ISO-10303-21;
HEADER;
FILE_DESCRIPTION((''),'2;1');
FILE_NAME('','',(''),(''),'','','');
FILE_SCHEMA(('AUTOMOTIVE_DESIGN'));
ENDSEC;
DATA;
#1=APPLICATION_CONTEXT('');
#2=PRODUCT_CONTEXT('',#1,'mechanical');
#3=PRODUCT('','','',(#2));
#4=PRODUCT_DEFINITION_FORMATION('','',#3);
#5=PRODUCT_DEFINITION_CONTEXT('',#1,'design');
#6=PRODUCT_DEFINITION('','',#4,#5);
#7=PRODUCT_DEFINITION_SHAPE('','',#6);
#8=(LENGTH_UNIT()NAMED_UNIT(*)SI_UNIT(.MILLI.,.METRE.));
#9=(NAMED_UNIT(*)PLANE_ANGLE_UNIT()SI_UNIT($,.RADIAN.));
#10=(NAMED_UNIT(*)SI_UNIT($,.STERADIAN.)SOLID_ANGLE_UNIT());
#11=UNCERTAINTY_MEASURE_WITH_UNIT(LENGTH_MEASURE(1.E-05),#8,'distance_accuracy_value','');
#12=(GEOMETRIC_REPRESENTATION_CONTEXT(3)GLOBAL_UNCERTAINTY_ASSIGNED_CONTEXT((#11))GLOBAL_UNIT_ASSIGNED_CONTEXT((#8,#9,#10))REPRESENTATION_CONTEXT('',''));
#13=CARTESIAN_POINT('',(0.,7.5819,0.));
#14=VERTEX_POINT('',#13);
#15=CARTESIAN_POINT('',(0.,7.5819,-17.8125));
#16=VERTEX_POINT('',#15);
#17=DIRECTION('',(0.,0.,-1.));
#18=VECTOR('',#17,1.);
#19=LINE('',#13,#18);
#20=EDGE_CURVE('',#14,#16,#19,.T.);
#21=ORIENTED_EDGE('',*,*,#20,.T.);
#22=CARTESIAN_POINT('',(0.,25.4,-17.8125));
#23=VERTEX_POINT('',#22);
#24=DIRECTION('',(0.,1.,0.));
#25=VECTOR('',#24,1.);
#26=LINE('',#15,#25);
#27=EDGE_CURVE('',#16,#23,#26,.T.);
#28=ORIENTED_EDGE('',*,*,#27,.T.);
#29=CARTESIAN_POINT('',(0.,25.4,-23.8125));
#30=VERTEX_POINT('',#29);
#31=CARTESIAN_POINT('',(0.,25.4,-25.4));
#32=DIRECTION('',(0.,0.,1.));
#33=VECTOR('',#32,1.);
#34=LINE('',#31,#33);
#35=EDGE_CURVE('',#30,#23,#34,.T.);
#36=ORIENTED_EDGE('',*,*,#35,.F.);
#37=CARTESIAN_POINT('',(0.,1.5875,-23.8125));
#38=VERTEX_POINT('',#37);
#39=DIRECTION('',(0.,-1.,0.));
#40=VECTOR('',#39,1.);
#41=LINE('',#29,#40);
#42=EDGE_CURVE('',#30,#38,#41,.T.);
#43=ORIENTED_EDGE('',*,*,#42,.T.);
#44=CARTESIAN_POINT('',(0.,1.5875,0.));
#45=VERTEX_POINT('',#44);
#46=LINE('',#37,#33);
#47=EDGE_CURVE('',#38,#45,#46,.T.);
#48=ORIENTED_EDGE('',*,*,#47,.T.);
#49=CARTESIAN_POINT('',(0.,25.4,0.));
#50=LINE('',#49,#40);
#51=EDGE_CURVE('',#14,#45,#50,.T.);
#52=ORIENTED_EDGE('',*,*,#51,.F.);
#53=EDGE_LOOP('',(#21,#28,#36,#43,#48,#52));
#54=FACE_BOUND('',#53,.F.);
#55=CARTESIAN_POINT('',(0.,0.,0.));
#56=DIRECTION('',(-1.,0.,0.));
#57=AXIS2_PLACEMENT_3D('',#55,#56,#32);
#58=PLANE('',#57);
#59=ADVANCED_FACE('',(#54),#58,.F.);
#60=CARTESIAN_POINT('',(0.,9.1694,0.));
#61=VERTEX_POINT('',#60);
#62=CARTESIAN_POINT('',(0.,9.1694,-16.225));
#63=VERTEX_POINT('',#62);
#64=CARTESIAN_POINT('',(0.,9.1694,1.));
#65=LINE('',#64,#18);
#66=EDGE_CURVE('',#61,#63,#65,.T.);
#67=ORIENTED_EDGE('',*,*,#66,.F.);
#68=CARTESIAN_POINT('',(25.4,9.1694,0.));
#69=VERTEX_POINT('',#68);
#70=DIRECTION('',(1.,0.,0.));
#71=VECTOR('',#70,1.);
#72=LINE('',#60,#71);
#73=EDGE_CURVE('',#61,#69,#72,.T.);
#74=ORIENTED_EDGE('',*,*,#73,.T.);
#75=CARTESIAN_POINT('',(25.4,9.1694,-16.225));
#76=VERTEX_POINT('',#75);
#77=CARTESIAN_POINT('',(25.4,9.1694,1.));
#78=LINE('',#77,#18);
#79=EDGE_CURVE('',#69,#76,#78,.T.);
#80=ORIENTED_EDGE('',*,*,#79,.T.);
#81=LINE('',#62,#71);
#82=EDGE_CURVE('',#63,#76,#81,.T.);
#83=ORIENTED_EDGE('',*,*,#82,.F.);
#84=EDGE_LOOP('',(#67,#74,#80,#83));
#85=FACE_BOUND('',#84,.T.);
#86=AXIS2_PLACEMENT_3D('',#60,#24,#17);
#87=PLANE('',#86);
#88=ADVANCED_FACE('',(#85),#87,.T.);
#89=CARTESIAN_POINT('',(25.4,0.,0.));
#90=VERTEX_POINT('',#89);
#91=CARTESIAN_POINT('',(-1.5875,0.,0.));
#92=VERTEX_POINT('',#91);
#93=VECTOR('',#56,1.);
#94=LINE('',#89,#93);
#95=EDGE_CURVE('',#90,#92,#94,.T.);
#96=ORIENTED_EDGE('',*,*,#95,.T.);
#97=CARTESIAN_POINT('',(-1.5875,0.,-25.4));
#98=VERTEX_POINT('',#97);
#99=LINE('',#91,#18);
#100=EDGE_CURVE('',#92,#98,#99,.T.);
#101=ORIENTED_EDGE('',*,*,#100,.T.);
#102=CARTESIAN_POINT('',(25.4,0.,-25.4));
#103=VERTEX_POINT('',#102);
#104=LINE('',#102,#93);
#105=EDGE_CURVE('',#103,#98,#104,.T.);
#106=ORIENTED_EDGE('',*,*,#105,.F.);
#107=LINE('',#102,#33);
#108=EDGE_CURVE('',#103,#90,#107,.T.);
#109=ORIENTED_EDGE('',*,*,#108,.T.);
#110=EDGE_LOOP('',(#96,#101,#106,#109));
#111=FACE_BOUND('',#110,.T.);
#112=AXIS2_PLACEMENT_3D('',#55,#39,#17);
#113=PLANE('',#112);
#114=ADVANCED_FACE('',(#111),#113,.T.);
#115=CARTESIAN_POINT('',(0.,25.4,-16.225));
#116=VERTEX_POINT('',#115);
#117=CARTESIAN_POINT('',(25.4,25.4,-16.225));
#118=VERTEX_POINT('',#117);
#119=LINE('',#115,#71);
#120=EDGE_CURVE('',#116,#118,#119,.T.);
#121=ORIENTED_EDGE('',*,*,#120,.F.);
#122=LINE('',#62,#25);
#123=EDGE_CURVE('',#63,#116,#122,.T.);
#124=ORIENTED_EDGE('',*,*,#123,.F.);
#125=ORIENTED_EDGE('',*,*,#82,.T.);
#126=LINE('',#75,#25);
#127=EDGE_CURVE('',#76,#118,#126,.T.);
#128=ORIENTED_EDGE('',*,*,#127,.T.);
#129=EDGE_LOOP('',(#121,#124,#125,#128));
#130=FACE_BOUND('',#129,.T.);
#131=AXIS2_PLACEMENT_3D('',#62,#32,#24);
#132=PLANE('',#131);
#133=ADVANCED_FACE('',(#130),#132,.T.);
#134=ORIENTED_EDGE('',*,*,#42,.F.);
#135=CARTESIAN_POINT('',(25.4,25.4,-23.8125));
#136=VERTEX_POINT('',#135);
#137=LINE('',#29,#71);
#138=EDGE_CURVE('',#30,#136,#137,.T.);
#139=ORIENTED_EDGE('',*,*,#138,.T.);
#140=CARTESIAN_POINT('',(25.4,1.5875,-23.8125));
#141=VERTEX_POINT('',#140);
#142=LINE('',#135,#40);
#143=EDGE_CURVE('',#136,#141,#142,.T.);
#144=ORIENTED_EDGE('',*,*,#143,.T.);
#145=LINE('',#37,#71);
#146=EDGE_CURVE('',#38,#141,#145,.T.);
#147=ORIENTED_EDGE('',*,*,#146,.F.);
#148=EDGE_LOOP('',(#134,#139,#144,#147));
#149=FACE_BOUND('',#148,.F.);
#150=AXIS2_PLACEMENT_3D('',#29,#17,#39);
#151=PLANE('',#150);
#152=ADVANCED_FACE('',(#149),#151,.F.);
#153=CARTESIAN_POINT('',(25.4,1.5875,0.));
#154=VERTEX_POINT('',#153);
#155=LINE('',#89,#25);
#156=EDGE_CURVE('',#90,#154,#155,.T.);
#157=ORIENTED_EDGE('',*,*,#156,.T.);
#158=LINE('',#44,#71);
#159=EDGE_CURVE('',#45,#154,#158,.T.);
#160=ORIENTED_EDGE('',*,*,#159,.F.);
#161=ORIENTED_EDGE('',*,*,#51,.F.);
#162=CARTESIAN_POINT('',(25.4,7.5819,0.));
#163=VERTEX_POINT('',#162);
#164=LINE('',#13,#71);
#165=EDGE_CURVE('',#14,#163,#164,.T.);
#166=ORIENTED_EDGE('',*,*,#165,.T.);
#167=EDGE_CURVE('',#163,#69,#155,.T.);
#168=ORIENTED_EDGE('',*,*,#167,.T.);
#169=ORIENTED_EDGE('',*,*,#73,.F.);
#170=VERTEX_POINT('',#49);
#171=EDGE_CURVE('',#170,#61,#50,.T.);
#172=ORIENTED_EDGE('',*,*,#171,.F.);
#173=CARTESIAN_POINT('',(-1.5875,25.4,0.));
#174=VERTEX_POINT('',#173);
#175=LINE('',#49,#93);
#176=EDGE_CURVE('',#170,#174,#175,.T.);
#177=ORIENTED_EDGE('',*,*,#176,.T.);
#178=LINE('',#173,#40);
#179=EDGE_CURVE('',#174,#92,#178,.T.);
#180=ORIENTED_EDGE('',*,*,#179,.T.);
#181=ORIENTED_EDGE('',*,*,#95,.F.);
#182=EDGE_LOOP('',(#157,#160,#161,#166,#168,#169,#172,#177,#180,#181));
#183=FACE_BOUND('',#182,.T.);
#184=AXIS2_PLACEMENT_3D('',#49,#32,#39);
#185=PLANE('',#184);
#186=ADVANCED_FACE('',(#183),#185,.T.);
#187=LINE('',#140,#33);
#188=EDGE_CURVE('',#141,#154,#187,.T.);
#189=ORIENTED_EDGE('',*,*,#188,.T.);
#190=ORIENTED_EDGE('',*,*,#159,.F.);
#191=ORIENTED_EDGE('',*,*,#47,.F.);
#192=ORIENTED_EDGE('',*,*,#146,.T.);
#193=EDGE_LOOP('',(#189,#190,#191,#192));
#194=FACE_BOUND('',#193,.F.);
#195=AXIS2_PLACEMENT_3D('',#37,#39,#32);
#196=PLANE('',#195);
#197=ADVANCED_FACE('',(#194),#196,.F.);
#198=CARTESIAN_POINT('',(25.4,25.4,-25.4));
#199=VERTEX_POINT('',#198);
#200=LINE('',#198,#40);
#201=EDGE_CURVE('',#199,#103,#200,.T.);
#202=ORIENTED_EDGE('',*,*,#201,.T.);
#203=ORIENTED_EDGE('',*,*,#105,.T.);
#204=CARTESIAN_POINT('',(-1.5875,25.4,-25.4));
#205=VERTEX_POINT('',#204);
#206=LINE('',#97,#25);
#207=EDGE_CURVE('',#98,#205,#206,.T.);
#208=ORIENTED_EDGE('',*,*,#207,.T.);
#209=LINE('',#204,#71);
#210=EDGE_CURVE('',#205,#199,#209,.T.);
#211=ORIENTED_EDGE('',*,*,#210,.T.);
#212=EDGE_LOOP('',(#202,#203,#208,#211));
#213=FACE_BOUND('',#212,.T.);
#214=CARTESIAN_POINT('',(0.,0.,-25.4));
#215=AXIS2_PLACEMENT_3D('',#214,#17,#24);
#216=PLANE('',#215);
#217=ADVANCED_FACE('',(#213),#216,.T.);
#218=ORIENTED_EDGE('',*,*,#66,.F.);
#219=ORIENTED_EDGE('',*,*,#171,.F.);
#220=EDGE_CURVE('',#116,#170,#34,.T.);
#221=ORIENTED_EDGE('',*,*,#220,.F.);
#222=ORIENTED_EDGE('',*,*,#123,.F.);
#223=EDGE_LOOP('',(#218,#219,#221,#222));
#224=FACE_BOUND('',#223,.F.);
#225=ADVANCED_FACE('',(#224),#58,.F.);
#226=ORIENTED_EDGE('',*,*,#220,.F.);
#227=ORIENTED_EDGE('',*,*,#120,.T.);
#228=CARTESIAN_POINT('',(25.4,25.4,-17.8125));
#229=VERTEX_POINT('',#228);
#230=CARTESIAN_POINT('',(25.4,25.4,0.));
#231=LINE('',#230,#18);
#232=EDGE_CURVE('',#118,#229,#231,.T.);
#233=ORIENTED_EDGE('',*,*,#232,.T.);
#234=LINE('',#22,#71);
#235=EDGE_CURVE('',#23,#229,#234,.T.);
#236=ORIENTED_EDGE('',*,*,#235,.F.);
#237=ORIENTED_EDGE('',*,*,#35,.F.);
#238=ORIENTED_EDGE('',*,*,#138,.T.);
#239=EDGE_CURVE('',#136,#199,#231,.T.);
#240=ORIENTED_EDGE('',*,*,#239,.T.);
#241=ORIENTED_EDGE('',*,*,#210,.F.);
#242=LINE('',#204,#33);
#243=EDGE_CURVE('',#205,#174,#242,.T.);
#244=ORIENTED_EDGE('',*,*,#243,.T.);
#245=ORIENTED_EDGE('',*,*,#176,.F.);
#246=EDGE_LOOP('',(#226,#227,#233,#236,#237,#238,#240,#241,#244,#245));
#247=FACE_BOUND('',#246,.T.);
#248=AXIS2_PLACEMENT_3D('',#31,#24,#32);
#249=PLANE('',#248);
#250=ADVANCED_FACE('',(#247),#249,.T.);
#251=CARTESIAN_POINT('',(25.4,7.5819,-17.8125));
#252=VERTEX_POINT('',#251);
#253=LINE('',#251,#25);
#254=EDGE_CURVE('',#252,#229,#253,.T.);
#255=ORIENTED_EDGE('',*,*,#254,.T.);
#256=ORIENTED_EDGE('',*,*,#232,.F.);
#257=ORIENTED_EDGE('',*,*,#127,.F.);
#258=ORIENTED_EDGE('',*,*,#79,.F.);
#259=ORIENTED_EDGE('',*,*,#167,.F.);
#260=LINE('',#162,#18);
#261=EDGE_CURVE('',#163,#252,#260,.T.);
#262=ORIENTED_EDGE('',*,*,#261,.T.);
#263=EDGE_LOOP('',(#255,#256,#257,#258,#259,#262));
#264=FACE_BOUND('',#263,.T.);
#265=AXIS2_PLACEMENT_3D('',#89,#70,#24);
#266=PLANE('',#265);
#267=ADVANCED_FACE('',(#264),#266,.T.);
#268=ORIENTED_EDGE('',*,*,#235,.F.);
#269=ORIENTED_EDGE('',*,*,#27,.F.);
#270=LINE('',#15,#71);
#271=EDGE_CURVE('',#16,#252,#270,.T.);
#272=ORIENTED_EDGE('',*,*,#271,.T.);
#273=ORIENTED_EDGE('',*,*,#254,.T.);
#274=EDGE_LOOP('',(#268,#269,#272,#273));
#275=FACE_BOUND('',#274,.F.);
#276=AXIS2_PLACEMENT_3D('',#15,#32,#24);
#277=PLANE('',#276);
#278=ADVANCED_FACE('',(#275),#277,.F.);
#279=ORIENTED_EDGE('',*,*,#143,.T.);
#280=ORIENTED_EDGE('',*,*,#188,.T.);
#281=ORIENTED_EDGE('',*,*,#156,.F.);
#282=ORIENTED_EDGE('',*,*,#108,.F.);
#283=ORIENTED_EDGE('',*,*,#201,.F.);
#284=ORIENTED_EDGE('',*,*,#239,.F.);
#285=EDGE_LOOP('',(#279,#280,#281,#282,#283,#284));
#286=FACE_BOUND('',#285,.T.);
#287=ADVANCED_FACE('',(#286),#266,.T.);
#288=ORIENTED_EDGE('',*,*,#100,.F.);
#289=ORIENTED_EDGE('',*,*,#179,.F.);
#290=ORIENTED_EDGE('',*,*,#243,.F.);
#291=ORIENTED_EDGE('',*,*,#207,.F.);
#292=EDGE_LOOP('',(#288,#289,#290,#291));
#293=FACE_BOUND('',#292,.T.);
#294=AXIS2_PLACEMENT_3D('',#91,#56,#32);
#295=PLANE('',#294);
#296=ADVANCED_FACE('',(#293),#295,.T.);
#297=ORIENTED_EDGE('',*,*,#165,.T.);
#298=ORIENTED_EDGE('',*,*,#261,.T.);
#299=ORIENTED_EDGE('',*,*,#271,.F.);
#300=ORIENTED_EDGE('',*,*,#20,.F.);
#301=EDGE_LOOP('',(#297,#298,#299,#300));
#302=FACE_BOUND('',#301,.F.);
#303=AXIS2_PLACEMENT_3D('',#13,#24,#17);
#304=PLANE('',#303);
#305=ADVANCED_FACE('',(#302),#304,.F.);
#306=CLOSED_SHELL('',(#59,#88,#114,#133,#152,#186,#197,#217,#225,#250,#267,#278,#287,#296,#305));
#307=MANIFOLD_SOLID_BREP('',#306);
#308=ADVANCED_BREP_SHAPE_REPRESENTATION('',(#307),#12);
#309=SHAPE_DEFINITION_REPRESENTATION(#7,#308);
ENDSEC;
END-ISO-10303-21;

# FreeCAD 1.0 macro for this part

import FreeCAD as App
import Part
import Sketcher
from FreeCAD import Vector
Q = App.Units.Quantity

doc = App.newDocument("Part")
body = doc.addObject("PartDesign::Body", "Body")
body.AllowCompound = True

sketch1 = doc.addObject("Sketcher::SketchObject", "Sketch")
body.addObject(sketch1)
sketch1.AttachmentSupport = (doc.YZ_Plane, [""])
sketch1.MapMode = "FlatFace"
sketch1.addGeometry([
    Part.LineSegment(Vector(1.6, 0, 0), Vector(0, 0, 0)),
    Part.LineSegment(Vector(0, 0, 0), Vector(0, -25.4, 0)),
    Part.LineSegment(Vector(0, -25.4, 0), Vector(25.4, -25.4, 0)),
    Part.LineSegment(Vector(25.4, -25.4, 0), Vector(25.4, -23.8, 0)),
    Part.LineSegment(Vector(25.4, -23.8, 0), Vector(1.6, -23.8, 0)),
    Part.LineSegment(Vector(1.6, -23.8, 0), Vector(1.6, 0, 0)),
    Part.LineSegment(Vector(9.2, 0, 0), Vector(7.6, 0, 0)),
    Part.LineSegment(Vector(7.6, 0, 0), Vector(7.6, -17.8, 0)),
    Part.LineSegment(Vector(7.6, -17.8, 0), Vector(25.4, -17.8, 0)),
    Part.LineSegment(Vector(25.4, -17.8, 0), Vector(25.4, -16.2, 0)),
    Part.LineSegment(Vector(25.4, -16.2, 0), Vector(9.2, -16.2, 0)),
    Part.LineSegment(Vector(9.2, -16.2, 0), Vector(9.2, 0, 0)),
], False)
sketch1.addConstraint([
    Sketcher.Constraint("Coincident", 0, 2, 1, 1),
    Sketcher.Constraint("Coincident", 1, 2, 2, 1),
    Sketcher.Constraint("Coincident", 2, 2, 3, 1),
    Sketcher.Constraint("Coincident", 3, 2, 4, 1),
    Sketcher.Constraint("Coincident", 4, 2, 5, 1),
    Sketcher.Constraint("Coincident", 5, 2, 0, 1),
    Sketcher.Constraint("Coincident", 6, 2, 7, 1),
    Sketcher.Constraint("Coincident", 7, 2, 8, 1),
    Sketcher.Constraint("Coincident", 8, 2, 9, 1),
    Sketcher.Constraint("Coincident", 9, 2, 10, 1),
    Sketcher.Constraint("Coincident", 10, 2, 11, 1),
    Sketcher.Constraint("Coincident", 11, 2, 6, 1),
    Sketcher.Constraint("Horizontal", 0),
    Sketcher.Constraint("Vertical", 1),
    Sketcher.Constraint("Horizontal", 2),
    Sketcher.Constraint("Vertical", 3),
    Sketcher.Constraint("Horizontal", 4),
    Sketcher.Constraint("Vertical", 5),
    Sketcher.Constraint("Horizontal", 6),
    Sketcher.Constraint("Vertical", 7),
    Sketcher.Constraint("Horizontal", 8),
    Sketcher.Constraint("Vertical", 9),
    Sketcher.Constraint("Horizontal", 10),
    Sketcher.Constraint("Vertical", 11),
    Sketcher.Constraint("Coincident", 0, 2, -1, 1),
    Sketcher.Constraint("PointOnObject", 6, 2, -1),
    Sketcher.Constraint("Vertical", 3, 2, 8, 2),
    Sketcher.Constraint("Equal", 0, 6),
    Sketcher.Constraint("Equal", 2, 1),
    Sketcher.Constraint("Equal", 6, 3),
    Sketcher.Constraint("Equal", 3, 9),
    Sketcher.Constraint("DistanceX", 2, 1, 2, 2, Q("1 in")),
    Sketcher.Constraint("DistanceX", 0, 2, 0, 1, Q("0.0625 in")),
    Sketcher.Constraint("DistanceX", 5, 2, 6, 2, Q("0.236 in")),
    Sketcher.Constraint("DistanceY", 4, 2, 7, 2, Q("6 mm")),
])
pad1 = doc.addObject("PartDesign::Pad", "Pad")
body.addObject(pad1)
pad1.Profile = sketch1
pad1.Length = Q("1 in")

sketch2 = doc.addObject("Sketcher::SketchObject", "Sketch001")
body.addObject(sketch2)
sketch2.AttachmentSupport = (doc.YZ_Plane, [""])
sketch2.MapMode = "FlatFace"
sketch2.addGeometry([
    Part.LineSegment(Vector(25, -25, 0), Vector(0, -25, 0)),
    Part.LineSegment(Vector(0, -25, 0), Vector(0, 0, 0)),
    Part.LineSegment(Vector(0, 0, 0), Vector(25, 0, 0)),
    Part.LineSegment(Vector(25, 0, 0), Vector(25, -25, 0)),
], False)
sketch2.addConstraint([
    Sketcher.Constraint("Coincident", 0, 2, 1, 1),
    Sketcher.Constraint("Coincident", 1, 2, 2, 1),
    Sketcher.Constraint("Coincident", 2, 2, 3, 1),
    Sketcher.Constraint("Coincident", 3, 2, 0, 1),
    Sketcher.Constraint("Horizontal", 0),
    Sketcher.Constraint("Vertical", 1),
    Sketcher.Constraint("Horizontal", 2),
    Sketcher.Constraint("Vertical", 3),
    Sketcher.Constraint("Coincident", 1, 2, -1, 1),
    Sketcher.Constraint("Equal", 2, 1),
    Sketcher.Constraint("DistanceX", 0, 2, 0, 1, Q("1 in")),
])
pad2 = doc.addObject("PartDesign::Pad", "Pad001")
body.addObject(pad2)
pad2.Profile = sketch2
pad2.Length = Q("0.0625 in")
pad2.Reversed = True

doc.recompute()
